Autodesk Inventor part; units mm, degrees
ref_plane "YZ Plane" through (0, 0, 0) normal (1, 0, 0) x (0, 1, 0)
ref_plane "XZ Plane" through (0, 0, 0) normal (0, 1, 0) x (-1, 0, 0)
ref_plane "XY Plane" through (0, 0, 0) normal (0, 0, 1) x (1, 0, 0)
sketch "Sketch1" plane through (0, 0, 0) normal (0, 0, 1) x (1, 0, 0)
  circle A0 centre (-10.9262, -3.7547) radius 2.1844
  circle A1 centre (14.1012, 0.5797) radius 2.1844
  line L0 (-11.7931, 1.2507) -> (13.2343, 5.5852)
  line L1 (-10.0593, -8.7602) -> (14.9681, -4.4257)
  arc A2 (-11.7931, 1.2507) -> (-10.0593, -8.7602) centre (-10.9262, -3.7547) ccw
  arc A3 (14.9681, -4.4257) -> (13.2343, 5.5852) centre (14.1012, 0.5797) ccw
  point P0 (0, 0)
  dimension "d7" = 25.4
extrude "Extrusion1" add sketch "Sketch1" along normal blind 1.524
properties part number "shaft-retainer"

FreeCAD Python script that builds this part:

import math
import FreeCAD as App
import Part
import Sketcher
Q = App.Units.Quantity

doc = App.newDocument("Part")
body = doc.addObject("PartDesign::Body", "Body")

# Sketch on XY plane
sketch1 = body.newObject("Sketcher::SketchObject", "Sketch")
sketch1.AttachmentSupport = (doc.getObject("XY_Plane"), [""])
sketch1.MapMode = "FlatFace"
sketch1.addGeometry(Part.LineSegment(App.Vector(13.2343, 5.5852, 0), App.Vector(-11.7931, 1.2507, 0)), False)
sketch1.addGeometry(Part.ArcOfCircle(Part.Circle(App.Vector(-10.9262, -3.7547, 0), App.Vector(0, 0, 1), 5.079916), math.radians(99.825755), math.radians(279.825563)), False)
sketch1.addGeometry(Part.LineSegment(App.Vector(-10.0593, -8.7602, 0), App.Vector(14.9681, -4.4257, 0)), False)
sketch1.addGeometry(Part.ArcOfCircle(Part.Circle(App.Vector(14.1012, 0.5797, 0), App.Vector(0, 0, 1), 5.079916), math.radians(-80.174245), math.radians(99.825563)), False)
sketch1.addGeometry(Part.Circle(App.Vector(-10.9262, -3.7547, 0), App.Vector(0, 0, 1), 2.1844), False)
sketch1.addGeometry(Part.Circle(App.Vector(14.1012, 0.5797, 0), App.Vector(0, 0, 1), 2.1844), False)
sketch1.addConstraint(Sketcher.Constraint("Tangent", 0, 2, 1, 1))
sketch1.addConstraint(Sketcher.Constraint("Tangent", 1, 2, 2, 1))
sketch1.addConstraint(Sketcher.Constraint("Tangent", 2, 2, 3, 1))
sketch1.addConstraint(Sketcher.Constraint("Tangent", 3, 2, 0, 1))
sketch1.addConstraint(Sketcher.Constraint("Coincident", 4, 3, 1, 3))
sketch1.addConstraint(Sketcher.Constraint("Coincident", 5, 3, 3, 3))
sketch1.addConstraint(Sketcher.Constraint("Equal", 1, 3))
sketch1.addConstraint(Sketcher.Constraint("Equal", 4, 5))
sketch1.addConstraint(Sketcher.Constraint("Distance", 0, Q("1 in")))
sketch1.addConstraint(Sketcher.Constraint("Radius", 1, Q("0.2 in")))
sketch1.addConstraint(Sketcher.Constraint("Diameter", 4, Q("0.172 in")))
sketch1.addConstraint(Sketcher.Constraint("DistanceX", 0, 2, -1, 1, Q("0.4643 in")))
sketch1.addConstraint(Sketcher.Constraint("DistanceX", -1, 1, 2, 2, Q("0.5893 in")))
sketch1.addConstraint(Sketcher.Constraint("DistanceY", 1, 3, -1, 1, 3.7547))
pad1 = body.newObject("PartDesign::Pad", "Pad")
pad1.Profile = sketch1
pad1.Length = Q("0.06 in")

doc.recompute()
